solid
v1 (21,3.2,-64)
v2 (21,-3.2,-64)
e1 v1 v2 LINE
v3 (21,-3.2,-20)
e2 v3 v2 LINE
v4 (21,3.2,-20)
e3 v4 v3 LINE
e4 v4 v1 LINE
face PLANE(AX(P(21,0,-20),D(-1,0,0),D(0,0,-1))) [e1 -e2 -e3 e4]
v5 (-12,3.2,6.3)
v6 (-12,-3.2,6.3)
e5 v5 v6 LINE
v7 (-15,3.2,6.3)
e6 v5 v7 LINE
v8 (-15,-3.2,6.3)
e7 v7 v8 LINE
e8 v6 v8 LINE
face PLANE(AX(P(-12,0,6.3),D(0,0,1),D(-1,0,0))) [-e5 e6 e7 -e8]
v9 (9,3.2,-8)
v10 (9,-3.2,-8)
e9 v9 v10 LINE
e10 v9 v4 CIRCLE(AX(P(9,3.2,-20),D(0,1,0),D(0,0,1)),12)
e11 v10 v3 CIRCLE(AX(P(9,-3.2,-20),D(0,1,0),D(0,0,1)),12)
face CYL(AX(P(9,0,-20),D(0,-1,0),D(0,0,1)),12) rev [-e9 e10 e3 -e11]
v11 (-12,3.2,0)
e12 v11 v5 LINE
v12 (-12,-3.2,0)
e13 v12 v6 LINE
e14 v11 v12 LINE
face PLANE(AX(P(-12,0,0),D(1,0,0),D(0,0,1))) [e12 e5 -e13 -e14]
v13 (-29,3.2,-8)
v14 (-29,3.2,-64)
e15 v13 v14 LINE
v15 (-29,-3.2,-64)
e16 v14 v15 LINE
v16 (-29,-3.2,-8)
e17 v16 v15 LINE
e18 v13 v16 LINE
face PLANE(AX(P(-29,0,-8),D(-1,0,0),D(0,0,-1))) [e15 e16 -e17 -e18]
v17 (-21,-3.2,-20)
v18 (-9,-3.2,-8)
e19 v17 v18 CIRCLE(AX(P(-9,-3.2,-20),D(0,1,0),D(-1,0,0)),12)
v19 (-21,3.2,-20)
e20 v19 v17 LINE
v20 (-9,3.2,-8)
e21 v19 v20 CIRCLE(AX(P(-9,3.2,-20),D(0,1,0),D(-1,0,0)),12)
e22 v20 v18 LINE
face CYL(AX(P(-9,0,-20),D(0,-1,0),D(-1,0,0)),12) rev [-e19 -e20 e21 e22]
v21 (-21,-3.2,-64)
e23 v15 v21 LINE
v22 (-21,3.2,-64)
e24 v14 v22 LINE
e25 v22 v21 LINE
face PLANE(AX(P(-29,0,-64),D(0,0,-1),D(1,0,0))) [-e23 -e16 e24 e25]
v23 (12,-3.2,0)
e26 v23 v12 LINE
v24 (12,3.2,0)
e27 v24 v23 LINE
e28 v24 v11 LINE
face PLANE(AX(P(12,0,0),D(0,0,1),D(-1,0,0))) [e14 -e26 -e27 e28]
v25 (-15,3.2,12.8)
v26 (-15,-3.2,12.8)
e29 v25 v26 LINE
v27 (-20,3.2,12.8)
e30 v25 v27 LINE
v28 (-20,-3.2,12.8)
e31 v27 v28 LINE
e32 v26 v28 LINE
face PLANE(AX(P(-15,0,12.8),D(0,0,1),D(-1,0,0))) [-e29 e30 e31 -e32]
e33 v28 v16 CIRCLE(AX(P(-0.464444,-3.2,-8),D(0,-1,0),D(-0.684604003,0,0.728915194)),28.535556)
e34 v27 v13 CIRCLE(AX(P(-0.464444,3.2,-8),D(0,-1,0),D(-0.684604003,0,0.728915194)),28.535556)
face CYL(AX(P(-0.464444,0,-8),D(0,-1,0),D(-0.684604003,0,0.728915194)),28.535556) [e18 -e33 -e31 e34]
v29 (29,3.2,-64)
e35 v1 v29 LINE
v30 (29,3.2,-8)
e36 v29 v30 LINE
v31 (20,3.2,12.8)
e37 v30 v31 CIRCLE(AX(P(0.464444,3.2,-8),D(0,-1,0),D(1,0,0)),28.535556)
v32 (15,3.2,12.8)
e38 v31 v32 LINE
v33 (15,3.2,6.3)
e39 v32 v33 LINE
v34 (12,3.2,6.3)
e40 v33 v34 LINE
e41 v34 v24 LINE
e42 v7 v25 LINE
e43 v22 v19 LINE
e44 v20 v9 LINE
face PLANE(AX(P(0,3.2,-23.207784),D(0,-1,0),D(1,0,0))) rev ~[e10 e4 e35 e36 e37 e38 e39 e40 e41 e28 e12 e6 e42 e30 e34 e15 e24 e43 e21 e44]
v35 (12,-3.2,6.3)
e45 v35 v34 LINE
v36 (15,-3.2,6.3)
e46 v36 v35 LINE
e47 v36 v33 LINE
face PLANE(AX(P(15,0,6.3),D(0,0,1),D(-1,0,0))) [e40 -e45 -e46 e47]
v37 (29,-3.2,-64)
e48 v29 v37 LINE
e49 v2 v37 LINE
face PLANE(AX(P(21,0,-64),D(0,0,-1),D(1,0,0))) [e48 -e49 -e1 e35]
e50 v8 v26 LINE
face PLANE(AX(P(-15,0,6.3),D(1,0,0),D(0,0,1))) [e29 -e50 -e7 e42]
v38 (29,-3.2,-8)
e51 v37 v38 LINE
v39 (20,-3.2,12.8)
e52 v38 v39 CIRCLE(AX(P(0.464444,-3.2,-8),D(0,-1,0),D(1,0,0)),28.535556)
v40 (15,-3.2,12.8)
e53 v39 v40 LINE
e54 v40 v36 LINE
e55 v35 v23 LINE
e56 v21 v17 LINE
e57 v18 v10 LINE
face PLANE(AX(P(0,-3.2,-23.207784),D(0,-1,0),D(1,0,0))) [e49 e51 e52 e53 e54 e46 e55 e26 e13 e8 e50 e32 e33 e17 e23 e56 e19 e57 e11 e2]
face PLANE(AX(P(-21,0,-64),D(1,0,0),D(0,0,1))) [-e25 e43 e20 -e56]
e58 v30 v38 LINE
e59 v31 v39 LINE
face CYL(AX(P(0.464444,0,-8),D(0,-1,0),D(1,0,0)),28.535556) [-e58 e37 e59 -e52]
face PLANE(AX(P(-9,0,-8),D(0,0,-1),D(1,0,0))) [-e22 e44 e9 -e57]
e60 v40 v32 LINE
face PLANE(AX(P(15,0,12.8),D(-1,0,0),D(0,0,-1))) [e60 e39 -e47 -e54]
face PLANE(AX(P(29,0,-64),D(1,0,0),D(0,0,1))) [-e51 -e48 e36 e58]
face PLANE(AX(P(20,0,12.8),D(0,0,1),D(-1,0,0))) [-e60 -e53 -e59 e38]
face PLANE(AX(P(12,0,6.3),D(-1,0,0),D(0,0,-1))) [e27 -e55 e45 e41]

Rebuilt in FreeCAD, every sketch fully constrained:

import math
import FreeCAD as App
import Part
import Sketcher
from FreeCAD import Vector

doc = App.newDocument("Part")
body = doc.addObject("PartDesign::Body", "Body")

sketch1 = body.newObject("Sketcher::SketchObject", "Sketch")
sketch1.AttachmentSupport = (doc.getObject("XZ_Plane"), [""])
sketch1.MapMode = "FlatFace"
sketch1.addGeometry([
    Part.LineSegment(Vector(12, 6.3, 0), Vector(12, 0, 0)),
    Part.LineSegment(Vector(12, 0, 0), Vector(-12, 0, 0)),
    Part.LineSegment(Vector(-12, 0, 0), Vector(-12, 6.3, 0)),
    Part.LineSegment(Vector(-12, 6.3, 0), Vector(-15, 6.3, 0)),
    Part.LineSegment(Vector(-15, 6.3, 0), Vector(-15, 12.8, 0)),
    Part.LineSegment(Vector(-15, 12.8, 0), Vector(-20, 12.8, 0)),
    Part.ArcOfCircle(Part.Circle(Vector(-0.464444, -8, 0), Vector(0, 0, 1), 28.535556), math.radians(133.204472), math.radians(180)),
    Part.LineSegment(Vector(-29, -8, 0), Vector(-29, -64, 0)),
    Part.LineSegment(Vector(-29, -64, 0), Vector(-21, -64, 0)),
    Part.LineSegment(Vector(-21, -64, 0), Vector(-21, -20, 0)),
    Part.ArcOfCircle(Part.Circle(Vector(-9, -20, 0), Vector(0, 0, 1), 12), math.radians(90), math.radians(180)),
    Part.LineSegment(Vector(-9, -8, 0), Vector(9, -8, 0)),
    Part.ArcOfCircle(Part.Circle(Vector(9, -20, 0), Vector(0, 0, 1), 12), math.radians(0), math.radians(90)),
    Part.LineSegment(Vector(21, -20, 0), Vector(21, -64, 0)),
    Part.LineSegment(Vector(21, -64, 0), Vector(29, -64, 0)),
    Part.LineSegment(Vector(29, -64, 0), Vector(29, -8, 0)),
    Part.ArcOfCircle(Part.Circle(Vector(0.464444, -8, 0), Vector(0, 0, 1), 28.535556), math.radians(0), math.radians(46.795528)),
    Part.LineSegment(Vector(20, 12.8, 0), Vector(15, 12.8, 0)),
    Part.LineSegment(Vector(15, 12.8, 0), Vector(15, 6.3, 0)),
    Part.LineSegment(Vector(15, 6.3, 0), Vector(12, 6.3, 0)),
], False)
sketch1.addConstraint([
    Sketcher.Constraint("Coincident", 0, 2, 1, 1),
    Sketcher.Constraint("Coincident", 1, 2, 2, 1),
    Sketcher.Constraint("Coincident", 2, 2, 3, 1),
    Sketcher.Constraint("Coincident", 3, 2, 4, 1),
    Sketcher.Constraint("Coincident", 4, 2, 5, 1),
    Sketcher.Constraint("Coincident", 5, 2, 6, 1),
    Sketcher.Constraint("Tangent", 6, 2, 7, 1),
    Sketcher.Constraint("Coincident", 7, 2, 8, 1),
    Sketcher.Constraint("Coincident", 8, 2, 9, 1),
    Sketcher.Constraint("Tangent", 9, 2, 10, 2),
    Sketcher.Constraint("Tangent", 10, 1, 11, 1),
    Sketcher.Constraint("Tangent", 11, 2, 12, 2),
    Sketcher.Constraint("Tangent", 12, 1, 13, 1),
    Sketcher.Constraint("Coincident", 13, 2, 14, 1),
    Sketcher.Constraint("Coincident", 14, 2, 15, 1),
    Sketcher.Constraint("Tangent", 15, 2, 16, 1),
    Sketcher.Constraint("Coincident", 16, 2, 17, 1),
    Sketcher.Constraint("Coincident", 17, 2, 18, 1),
    Sketcher.Constraint("Coincident", 18, 2, 19, 1),
    Sketcher.Constraint("Coincident", 19, 2, 0, 1),
    Sketcher.Constraint("Vertical", 0),
    Sketcher.Constraint("Horizontal", 1),
    Sketcher.Constraint("Vertical", 2),
    Sketcher.Constraint("Horizontal", 3),
    Sketcher.Constraint("Vertical", 4),
    Sketcher.Constraint("Horizontal", 5),
    Sketcher.Constraint("Vertical", 7),
    Sketcher.Constraint("Horizontal", 8),
    Sketcher.Constraint("Vertical", 9),
    Sketcher.Constraint("Horizontal", 11),
    Sketcher.Constraint("Vertical", 13),
    Sketcher.Constraint("Horizontal", 14),
    Sketcher.Constraint("Vertical", 15),
    Sketcher.Constraint("Horizontal", 17),
    Sketcher.Constraint("Vertical", 18),
    Sketcher.Constraint("Horizontal", 19),
    Sketcher.Constraint("Equal", 10, 12),
    Sketcher.Constraint("Equal", 6, 16),
    Sketcher.Constraint("Symmetric", 0, 2, 1, 2, -1, 1),
    Sketcher.Constraint("Symmetric", 6, 3, 16, 3, -2),
    Sketcher.Constraint("Symmetric", 8, 2, 13, 2, -2),
    Sketcher.Constraint("Symmetric", 4, 2, 17, 2, -2),
    Sketcher.Constraint("Horizontal", 6, 2, 10, 1),
    Sketcher.Constraint("Horizontal", 3, 2, 18, 2),
    Sketcher.Constraint("Radius", 10, 12.0),
    Sketcher.Constraint("DistanceX", 1, 2, 1, 1, 24.0),
    Sketcher.Constraint("DistanceX", 3, 2, 3, 1, 3.0),
    Sketcher.Constraint("DistanceX", 5, 2, 5, 1, 5.0),
    Sketcher.Constraint("DistanceX", 8, 1, 8, 2, 8.0),
    Sketcher.Constraint("DistanceX", 11, 1, 11, 2, 18.0),
    Sketcher.Constraint("DistanceY", 7, 2, 7, 1, 56.0),
    Sketcher.Constraint("DistanceY", 0, 2, 0, 1, 6.3),
    Sketcher.Constraint("DistanceY", 4, 1, 4, 2, 6.5),
    Sketcher.Constraint("DistanceY", 6, 3, -1, 1, 8.0),
])
pad1 = body.newObject("PartDesign::Pad", "Pad")
pad1.Profile = sketch1
pad1.Length = 6.4
pad1.Midplane = True

doc.recompute()
